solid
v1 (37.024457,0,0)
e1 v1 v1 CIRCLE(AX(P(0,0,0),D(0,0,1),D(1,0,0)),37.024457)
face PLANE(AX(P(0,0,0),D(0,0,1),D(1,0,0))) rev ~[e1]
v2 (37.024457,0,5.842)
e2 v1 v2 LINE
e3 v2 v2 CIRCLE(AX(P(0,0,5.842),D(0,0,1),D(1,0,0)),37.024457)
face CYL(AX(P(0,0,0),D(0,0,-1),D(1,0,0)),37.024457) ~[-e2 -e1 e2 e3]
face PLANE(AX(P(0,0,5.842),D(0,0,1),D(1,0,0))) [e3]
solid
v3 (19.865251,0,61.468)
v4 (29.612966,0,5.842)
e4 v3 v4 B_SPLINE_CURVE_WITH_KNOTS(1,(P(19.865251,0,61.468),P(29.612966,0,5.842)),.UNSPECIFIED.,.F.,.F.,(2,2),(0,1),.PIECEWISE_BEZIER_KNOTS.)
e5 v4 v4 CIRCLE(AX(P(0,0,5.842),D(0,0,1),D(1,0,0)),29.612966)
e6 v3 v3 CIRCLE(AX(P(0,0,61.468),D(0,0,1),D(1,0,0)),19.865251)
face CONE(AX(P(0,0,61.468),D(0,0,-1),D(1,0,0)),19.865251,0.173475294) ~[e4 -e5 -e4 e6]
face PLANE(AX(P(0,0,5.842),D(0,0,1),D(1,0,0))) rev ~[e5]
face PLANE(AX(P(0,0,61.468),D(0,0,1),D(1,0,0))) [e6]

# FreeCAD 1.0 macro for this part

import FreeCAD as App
import Part
import Sketcher
Q = App.Units.Quantity

doc = App.newDocument("Part")
body = doc.addObject("PartDesign::Body", "Body")

# Sketch on XY plane
sketch1 = body.newObject("Sketcher::SketchObject", "Sketch")
sketch1.AttachmentSupport = (doc.getObject("XY_Plane"), [""])
sketch1.MapMode = "FlatFace"
sketch1.addGeometry(Part.Circle(App.Vector(0, 0, 0), App.Vector(0, 0, 1), 37.024457), False)
sketch1.addConstraint([
    Sketcher.Constraint("Coincident", 0, 3, -1, 1),
    Sketcher.Constraint("Diameter", 0, 74.048914),
])
pad1 = body.newObject("PartDesign::Pad", "Pad")
pad1.Profile = sketch1
pad1.Length = Q("0.23 in")
body2 = doc.addObject("PartDesign::Body", "Body001")

# Sketch on XY plane
sketch2 = body2.newObject("Sketcher::SketchObject", "Sketch001")
sketch2.AttachmentSupport = (doc.getObject("XY_Plane001"), [""])
sketch2.MapMode = "FlatFace"
sketch2.AttachmentOffset = App.Placement(App.Vector(0, 0, 2.42 * 25.4), App.Rotation())
sketch2.addGeometry(Part.Circle(App.Vector(0, 0, 0), App.Vector(0, 0, 1), 19.865251), False)
sketch2.addConstraint([
    Sketcher.Constraint("Coincident", 0, 3, -1, 1),
    Sketcher.Constraint("Diameter", 0, 39.730502),
])

# Sketch on XY plane
sketch3 = body2.newObject("Sketcher::SketchObject", "Sketch002")
sketch3.AttachmentSupport = (doc.getObject("XY_Plane001"), [""])
sketch3.MapMode = "FlatFace"
sketch3.AttachmentOffset = App.Placement(App.Vector(0, 0, 0.23 * 25.4), App.Rotation())
sketch3.addGeometry(Part.Circle(App.Vector(0, 0, 0), App.Vector(0, 0, 1), 29.612966), False)
sketch3.addConstraint([
    Sketcher.Constraint("Coincident", 0, 3, -1, 1),
    Sketcher.Constraint("Diameter", 0, 59.225932),
])

additiveloft = body2.newObject("PartDesign::AdditiveLoft", "AdditiveLoft")
additiveloft.Profile = sketch2
additiveloft.Sections = [sketch3]

doc.recompute()
